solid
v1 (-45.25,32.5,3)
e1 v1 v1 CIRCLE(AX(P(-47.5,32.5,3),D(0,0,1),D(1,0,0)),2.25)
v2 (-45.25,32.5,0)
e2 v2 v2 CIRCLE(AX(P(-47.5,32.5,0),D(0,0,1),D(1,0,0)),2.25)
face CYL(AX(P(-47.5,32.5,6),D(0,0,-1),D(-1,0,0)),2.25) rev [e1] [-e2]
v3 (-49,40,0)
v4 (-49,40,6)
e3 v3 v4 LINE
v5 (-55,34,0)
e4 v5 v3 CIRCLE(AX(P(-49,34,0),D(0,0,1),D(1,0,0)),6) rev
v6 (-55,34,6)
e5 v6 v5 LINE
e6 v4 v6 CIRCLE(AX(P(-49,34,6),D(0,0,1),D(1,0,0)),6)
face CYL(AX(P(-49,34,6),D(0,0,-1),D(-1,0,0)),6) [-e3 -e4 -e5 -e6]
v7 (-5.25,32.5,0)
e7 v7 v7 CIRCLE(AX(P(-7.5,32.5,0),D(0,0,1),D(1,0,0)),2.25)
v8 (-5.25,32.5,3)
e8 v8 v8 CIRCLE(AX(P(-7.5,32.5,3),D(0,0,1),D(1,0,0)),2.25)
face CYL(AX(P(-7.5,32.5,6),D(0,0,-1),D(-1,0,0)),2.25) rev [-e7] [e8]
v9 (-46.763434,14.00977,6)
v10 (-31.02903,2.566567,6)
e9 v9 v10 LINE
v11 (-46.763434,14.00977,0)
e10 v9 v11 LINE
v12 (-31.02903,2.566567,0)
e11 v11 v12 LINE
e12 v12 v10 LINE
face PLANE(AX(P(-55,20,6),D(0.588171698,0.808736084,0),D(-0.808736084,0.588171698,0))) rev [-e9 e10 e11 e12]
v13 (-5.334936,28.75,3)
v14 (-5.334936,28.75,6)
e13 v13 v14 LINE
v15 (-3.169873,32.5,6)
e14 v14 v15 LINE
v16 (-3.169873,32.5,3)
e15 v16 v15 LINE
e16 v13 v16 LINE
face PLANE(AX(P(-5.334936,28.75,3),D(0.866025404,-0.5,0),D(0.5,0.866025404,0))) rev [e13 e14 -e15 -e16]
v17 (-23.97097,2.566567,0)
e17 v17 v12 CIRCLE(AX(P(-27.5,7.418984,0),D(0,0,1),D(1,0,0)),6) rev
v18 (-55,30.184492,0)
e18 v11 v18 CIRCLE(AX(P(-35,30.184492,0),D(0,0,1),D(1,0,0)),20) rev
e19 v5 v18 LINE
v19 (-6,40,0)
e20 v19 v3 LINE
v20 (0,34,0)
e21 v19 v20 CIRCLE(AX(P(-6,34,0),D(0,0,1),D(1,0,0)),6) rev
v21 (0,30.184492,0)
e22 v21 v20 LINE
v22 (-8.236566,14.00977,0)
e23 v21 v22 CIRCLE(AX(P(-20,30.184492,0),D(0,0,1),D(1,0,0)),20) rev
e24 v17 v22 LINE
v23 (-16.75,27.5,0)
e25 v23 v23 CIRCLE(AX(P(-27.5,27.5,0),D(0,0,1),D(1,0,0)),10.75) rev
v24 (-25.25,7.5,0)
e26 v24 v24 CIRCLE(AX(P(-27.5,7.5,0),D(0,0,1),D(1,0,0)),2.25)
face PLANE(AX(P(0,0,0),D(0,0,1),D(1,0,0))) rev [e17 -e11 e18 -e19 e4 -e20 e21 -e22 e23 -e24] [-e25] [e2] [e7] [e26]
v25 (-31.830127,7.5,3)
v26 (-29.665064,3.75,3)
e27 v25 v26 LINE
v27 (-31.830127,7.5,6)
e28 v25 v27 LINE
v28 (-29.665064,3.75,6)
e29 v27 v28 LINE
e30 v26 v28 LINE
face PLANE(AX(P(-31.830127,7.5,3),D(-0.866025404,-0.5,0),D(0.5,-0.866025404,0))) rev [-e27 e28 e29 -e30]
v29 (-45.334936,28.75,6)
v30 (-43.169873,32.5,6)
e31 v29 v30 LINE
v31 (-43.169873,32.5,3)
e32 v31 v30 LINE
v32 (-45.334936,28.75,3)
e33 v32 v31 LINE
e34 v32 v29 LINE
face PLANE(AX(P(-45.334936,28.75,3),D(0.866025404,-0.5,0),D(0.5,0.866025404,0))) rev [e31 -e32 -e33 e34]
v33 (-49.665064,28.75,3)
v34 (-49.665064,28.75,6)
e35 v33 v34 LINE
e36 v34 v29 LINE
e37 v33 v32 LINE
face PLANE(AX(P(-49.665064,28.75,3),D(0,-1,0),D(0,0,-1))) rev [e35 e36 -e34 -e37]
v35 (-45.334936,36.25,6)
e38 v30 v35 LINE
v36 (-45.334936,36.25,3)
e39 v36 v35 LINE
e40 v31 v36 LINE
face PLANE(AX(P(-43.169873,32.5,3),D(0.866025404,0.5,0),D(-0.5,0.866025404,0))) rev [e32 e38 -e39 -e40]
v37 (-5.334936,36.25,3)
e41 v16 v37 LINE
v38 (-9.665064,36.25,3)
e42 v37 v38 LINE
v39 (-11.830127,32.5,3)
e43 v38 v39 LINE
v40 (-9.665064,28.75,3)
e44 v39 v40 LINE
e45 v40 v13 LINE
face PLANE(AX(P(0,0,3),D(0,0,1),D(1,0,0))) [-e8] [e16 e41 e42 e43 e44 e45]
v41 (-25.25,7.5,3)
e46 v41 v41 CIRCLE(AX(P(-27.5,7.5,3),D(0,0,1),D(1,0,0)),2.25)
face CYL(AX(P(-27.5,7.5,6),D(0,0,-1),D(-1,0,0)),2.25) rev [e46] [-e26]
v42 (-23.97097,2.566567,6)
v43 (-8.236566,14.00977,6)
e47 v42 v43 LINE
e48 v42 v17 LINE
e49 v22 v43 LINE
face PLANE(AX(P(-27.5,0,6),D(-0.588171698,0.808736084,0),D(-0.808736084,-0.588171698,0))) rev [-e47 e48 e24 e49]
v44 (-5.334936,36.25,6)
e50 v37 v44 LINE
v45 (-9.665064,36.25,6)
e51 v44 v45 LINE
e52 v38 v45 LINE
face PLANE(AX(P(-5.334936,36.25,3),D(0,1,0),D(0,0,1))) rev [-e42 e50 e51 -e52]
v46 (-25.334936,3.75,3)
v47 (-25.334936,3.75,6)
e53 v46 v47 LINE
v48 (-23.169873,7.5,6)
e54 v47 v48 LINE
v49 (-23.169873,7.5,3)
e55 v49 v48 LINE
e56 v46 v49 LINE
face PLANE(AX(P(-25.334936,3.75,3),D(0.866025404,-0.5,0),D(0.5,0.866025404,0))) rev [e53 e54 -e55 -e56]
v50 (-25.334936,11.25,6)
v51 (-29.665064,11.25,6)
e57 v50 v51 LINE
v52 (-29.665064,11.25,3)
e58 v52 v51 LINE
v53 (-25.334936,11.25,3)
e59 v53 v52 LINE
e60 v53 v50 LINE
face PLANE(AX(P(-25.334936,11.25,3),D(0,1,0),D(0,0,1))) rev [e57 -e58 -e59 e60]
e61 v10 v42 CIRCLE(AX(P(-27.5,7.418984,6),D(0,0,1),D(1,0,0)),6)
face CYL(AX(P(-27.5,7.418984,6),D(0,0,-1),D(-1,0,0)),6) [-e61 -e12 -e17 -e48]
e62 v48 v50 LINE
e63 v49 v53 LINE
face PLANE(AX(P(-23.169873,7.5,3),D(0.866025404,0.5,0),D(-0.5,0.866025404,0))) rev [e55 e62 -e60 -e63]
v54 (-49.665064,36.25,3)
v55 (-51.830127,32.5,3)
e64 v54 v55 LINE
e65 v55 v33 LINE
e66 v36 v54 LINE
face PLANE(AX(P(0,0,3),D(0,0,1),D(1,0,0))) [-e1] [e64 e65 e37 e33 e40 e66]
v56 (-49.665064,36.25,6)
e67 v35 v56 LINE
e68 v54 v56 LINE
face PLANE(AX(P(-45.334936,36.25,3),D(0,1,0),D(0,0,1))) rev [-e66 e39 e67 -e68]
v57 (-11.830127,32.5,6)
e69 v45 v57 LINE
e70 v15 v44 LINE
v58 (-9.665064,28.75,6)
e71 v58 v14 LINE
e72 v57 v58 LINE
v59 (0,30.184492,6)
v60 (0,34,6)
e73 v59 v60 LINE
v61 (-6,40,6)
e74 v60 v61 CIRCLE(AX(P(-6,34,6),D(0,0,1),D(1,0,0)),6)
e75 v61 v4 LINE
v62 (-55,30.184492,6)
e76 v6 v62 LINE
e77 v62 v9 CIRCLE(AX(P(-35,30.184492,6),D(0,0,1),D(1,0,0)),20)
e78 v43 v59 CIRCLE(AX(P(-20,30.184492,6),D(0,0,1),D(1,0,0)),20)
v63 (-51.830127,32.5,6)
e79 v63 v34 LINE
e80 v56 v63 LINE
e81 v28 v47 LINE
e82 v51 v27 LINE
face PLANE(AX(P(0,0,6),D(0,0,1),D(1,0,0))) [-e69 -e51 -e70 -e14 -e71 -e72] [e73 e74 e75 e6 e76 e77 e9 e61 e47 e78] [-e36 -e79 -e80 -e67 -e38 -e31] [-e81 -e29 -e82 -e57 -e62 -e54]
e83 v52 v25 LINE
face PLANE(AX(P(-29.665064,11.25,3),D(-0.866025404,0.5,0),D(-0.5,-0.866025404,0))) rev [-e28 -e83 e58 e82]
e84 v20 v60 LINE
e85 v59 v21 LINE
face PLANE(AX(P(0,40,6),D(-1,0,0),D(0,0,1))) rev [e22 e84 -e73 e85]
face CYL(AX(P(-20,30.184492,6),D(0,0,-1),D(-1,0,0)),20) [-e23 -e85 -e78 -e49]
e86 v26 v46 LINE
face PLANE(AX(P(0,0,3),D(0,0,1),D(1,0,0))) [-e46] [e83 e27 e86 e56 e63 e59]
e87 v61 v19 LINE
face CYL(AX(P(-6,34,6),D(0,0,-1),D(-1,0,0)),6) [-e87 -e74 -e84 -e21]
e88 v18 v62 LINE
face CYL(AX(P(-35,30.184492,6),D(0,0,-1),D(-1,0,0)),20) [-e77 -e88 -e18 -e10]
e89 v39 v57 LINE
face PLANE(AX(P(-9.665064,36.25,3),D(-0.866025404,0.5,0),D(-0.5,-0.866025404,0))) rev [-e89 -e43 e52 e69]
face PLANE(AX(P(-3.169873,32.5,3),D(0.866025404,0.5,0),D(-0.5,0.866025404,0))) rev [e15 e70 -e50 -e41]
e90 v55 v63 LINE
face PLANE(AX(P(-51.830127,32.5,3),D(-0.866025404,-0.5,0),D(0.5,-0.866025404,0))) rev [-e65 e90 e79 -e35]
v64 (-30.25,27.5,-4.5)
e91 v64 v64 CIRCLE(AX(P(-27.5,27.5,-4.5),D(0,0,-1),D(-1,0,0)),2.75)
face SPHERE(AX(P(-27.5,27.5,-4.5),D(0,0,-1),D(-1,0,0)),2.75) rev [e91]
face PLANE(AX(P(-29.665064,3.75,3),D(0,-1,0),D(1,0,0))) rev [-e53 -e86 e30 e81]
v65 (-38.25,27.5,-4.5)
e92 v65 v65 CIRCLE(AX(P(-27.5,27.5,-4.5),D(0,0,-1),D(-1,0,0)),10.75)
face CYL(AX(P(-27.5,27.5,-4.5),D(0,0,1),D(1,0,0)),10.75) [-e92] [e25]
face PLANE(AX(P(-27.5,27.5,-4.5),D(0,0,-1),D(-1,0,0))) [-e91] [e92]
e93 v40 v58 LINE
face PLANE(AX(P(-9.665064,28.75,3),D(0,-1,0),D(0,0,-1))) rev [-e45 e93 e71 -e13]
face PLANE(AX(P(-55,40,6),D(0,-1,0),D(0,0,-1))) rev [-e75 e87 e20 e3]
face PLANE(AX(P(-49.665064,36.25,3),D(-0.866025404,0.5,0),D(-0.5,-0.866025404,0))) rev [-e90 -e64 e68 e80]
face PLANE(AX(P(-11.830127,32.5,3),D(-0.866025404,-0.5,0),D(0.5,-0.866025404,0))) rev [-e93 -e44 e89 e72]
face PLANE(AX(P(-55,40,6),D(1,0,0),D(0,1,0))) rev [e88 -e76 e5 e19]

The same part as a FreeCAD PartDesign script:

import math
import FreeCAD as App
import Part
import Sketcher

V = App.Vector
Q = App.Units.Quantity


def edges_at(feature, points):
    """Names of the edges that pass closest to the given points."""
    edges = feature.Shape.Edges
    near = lambda p: min(range(len(edges)), key=lambda i: edges[i].distToShape(Part.Vertex(*p))[0])
    return sorted({f"Edge{near(p) + 1}" for p in points})

doc = App.newDocument("Part")
body = doc.addObject("PartDesign::Body", "Body")

sketch1 = doc.addObject("Sketcher::SketchObject", "Sketch")
body.addObject(sketch1)
sketch1.AttachmentSupport = (doc.XY_Plane, [""])
sketch1.MapMode = "FlatFace"
sketch1.addGeometry(Part.LineSegment(V(-55, 20, 0), V(-27.5, 0, 0)), False)
sketch1.addGeometry(Part.LineSegment(V(-27.5, 0, 0), V(0, 20, 0)), False)
sketch1.addGeometry(Part.LineSegment(V(0, 20, 0), V(0, 40, 0)), False)
sketch1.addGeometry(Part.LineSegment(V(0, 40, 0), V(-55, 40, 0)), False)
sketch1.addGeometry(Part.LineSegment(V(-55, 40, 0), V(-55, 20, 0)), False)
sketch1.addGeometry(Part.Circle(V(-27.5, 7.5, 0), V(0, 0, 1), 2.25), False)
sketch1.addGeometry(Part.Circle(V(-47.5, 32.5, 0), V(0, 0, 1), 2.25), False)
sketch1.addGeometry(Part.Circle(V(-7.5, 32.5, 0), V(0, 0, 1), 2.25), False)
sketch1.addConstraint(Sketcher.Constraint("Coincident", 0, 2, 1, 1))
sketch1.addConstraint(Sketcher.Constraint("Coincident", 1, 2, 2, 1))
sketch1.addConstraint(Sketcher.Constraint("Coincident", 2, 2, 3, 1))
sketch1.addConstraint(Sketcher.Constraint("Coincident", 3, 2, 4, 1))
sketch1.addConstraint(Sketcher.Constraint("Coincident", 4, 2, 0, 1))
sketch1.addConstraint(Sketcher.Constraint("Vertical", 2))
sketch1.addConstraint(Sketcher.Constraint("Horizontal", 3))
sketch1.addConstraint(Sketcher.Constraint("Vertical", 4))
sketch1.addConstraint(Sketcher.Constraint("Equal", 5, 6))
sketch1.addConstraint(Sketcher.Constraint("Equal", 6, 7))
sketch1.addConstraint(Sketcher.Constraint("PointOnObject", 0, 2, -1))
sketch1.addConstraint(Sketcher.Constraint("PointOnObject", 1, 2, -2))
sketch1.addConstraint(Sketcher.Constraint("Horizontal", 6, 3, 7, 3))
sketch1.addConstraint(Sketcher.Constraint("Horizontal", 1, 2, 4, 2))
sketch1.addConstraint(Sketcher.Constraint("Vertical", 5, 3, 0, 2))
sketch1.addConstraint(Sketcher.Constraint("Equal", 0, 1))
sketch1.addConstraint(Sketcher.Constraint("Diameter", 5, 4.5))
sketch1.addConstraint(Sketcher.Constraint("DistanceX", 3, 2, 3, 1, 55.0))
sketch1.addConstraint(Sketcher.Constraint("DistanceY", 2, 1, 2, 2, 20.0))
sketch1.addConstraint(Sketcher.Constraint("DistanceY", -1, 1, 1, 2, 20.0))
sketch1.addConstraint(Sketcher.Constraint("DistanceX", 6, 3, 5, 3, 20.0))
sketch1.addConstraint(Sketcher.Constraint("DistanceY", 5, 3, 6, 3, 25.0))
sketch1.addConstraint(Sketcher.Constraint("DistanceX", 5, 3, 7, 3, 20.0))
sketch1.addConstraint(Sketcher.Constraint("DistanceY", -1, 1, 5, 3, 7.5))
pad1 = doc.addObject("PartDesign::Pad", "Pad")
body.addObject(pad1)
pad1.Profile = sketch1
pad1.Length = 6
doc.recompute()

fillet = doc.addObject("PartDesign::Fillet", "Fillet")
body.addObject(fillet)
fillet.Base = (pad1, edges_at(pad1, [(-55, 40, 3), (0, 40, 3), (-27.5, 0, 3)]))
fillet.Radius = 6
doc.recompute()

fillet2 = doc.addObject("PartDesign::Fillet", "Fillet001")
body.addObject(fillet2)
fillet2.Base = (fillet, edges_at(fillet, [(0, 20, 3), (-55, 20, 3)]))
fillet2.Radius = 20

sketch2 = doc.addObject("Sketcher::SketchObject", "Sketch001")
body.addObject(sketch2)
sketch2.AttachmentSupport = (doc.XY_Plane, [""])
sketch2.MapMode = "FlatFace"
sketch2.addGeometry(Part.Circle(V(-27.5, 27.5, 0), V(0, 0, 1), 10.75), False)
sketch2.addConstraint(Sketcher.Constraint("Diameter", 0, 21.5))
sketch2.addConstraint(Sketcher.Constraint("DistanceX", 0, 3, -1, 1, 27.5))
sketch2.addConstraint(Sketcher.Constraint("DistanceY", -1, 1, 0, 3, 27.5))
pad2 = doc.addObject("PartDesign::Pad", "Pad001")
body.addObject(pad2)
pad2.Profile = sketch2
pad2.Length = 4.5
pad2.Reversed = True

sketch3 = doc.addObject("Sketcher::SketchObject", "Sketch002")
body.addObject(sketch3)
sketch3.AttachmentSupport = (doc.XY_Plane, [""])
sketch3.MapMode = "FlatFace"
sketch3.AttachmentOffset = App.Placement(V(0, 0, -4.5), App.Rotation())
sketch3.addGeometry(Part.LineSegment(V(-27.5, 24.75, 0), V(-27.5, 30.25, 0)), False)
sketch3.addGeometry(Part.ArcOfCircle(Part.Circle(V(-27.5, 27.5, 0), V(0, 0, 1), 2.75), math.radians(-90), math.radians(90)), False)
sketch3.addGeometry(Part.LineSegment(V(-27.5, 30.25, 0), V(-27.5, 24.75, 0)), True)
sketch3.addConstraint(Sketcher.Constraint("Coincident", 0, 1, 1, 1))
sketch3.addConstraint(Sketcher.Constraint("Coincident", 1, 2, 0, 2))
sketch3.addConstraint(Sketcher.Constraint("Vertical", 0))
sketch3.addConstraint(Sketcher.Constraint("Vertical", 2))
sketch3.addConstraint(Sketcher.Constraint("Coincident", 2, 1, 1, 2))
sketch3.addConstraint(Sketcher.Constraint("Vertical", 1, 3, 0, 1))
sketch3.addConstraint(Sketcher.Constraint("Equal", 0, 2))
sketch3.addConstraint(Sketcher.Constraint("Radius", 1, 2.75))
sketch3.addConstraint(Sketcher.Constraint("DistanceX", 1, 3, -1, 1, 27.5))
sketch3.addConstraint(Sketcher.Constraint("DistanceY", -1, 1, 1, 3, 27.5))
groove = doc.addObject("PartDesign::Groove", "Groove")
body.addObject(groove)
groove.Profile = sketch3
groove.ReferenceAxis = (sketch3, ["Axis0"])
groove.Angle = 360

sketch4 = doc.addObject("Sketcher::SketchObject", "Sketch003")
body.addObject(sketch4)
sketch4.AttachmentSupport = (doc.XY_Plane, [""])
sketch4.MapMode = "FlatFace"
sketch4.AttachmentOffset = App.Placement(V(0, 0, 6), App.Rotation())
sketch4.addGeometry(Part.LineSegment(V(-43.169873, 32.5, 0), V(-45.334936, 36.25, 0)), False)
sketch4.addGeometry(Part.LineSegment(V(-45.334936, 36.25, 0), V(-49.665064, 36.25, 0)), False)
sketch4.addGeometry(Part.LineSegment(V(-49.665064, 36.25, 0), V(-51.830127, 32.5, 0)), False)
sketch4.addGeometry(Part.LineSegment(V(-51.830127, 32.5, 0), V(-49.665064, 28.75, 0)), False)
sketch4.addGeometry(Part.LineSegment(V(-49.665064, 28.75, 0), V(-45.334936, 28.75, 0)), False)
sketch4.addGeometry(Part.LineSegment(V(-45.334936, 28.75, 0), V(-43.169873, 32.5, 0)), False)
sketch4.addGeometry(Part.LineSegment(V(-11.830127, 32.5, 0), V(-9.665064, 28.75, 0)), False)
sketch4.addGeometry(Part.LineSegment(V(-9.665064, 28.75, 0), V(-5.334936, 28.75, 0)), False)
sketch4.addGeometry(Part.LineSegment(V(-5.334936, 28.75, 0), V(-3.169873, 32.5, 0)), False)
sketch4.addGeometry(Part.LineSegment(V(-3.169873, 32.5, 0), V(-5.334936, 36.25, 0)), False)
sketch4.addGeometry(Part.LineSegment(V(-5.334936, 36.25, 0), V(-9.665064, 36.25, 0)), False)
sketch4.addGeometry(Part.LineSegment(V(-9.665064, 36.25, 0), V(-11.830127, 32.5, 0)), False)
sketch4.addGeometry(Part.LineSegment(V(-23.169873, 7.5, 0), V(-25.334936, 11.25, 0)), False)
sketch4.addGeometry(Part.LineSegment(V(-25.334936, 11.25, 0), V(-29.665064, 11.25, 0)), False)
sketch4.addGeometry(Part.LineSegment(V(-29.665064, 11.25, 0), V(-31.830127, 7.5, 0)), False)
sketch4.addGeometry(Part.LineSegment(V(-31.830127, 7.5, 0), V(-29.665064, 3.75, 0)), False)
sketch4.addGeometry(Part.LineSegment(V(-29.665064, 3.75, 0), V(-25.334936, 3.75, 0)), False)
sketch4.addGeometry(Part.LineSegment(V(-25.334936, 3.75, 0), V(-23.169873, 7.5, 0)), False)
sketch4.addConstraint(Sketcher.Constraint("Coincident", 0, 2, 1, 1))
sketch4.addConstraint(Sketcher.Constraint("Coincident", 1, 2, 2, 1))
sketch4.addConstraint(Sketcher.Constraint("Coincident", 2, 2, 3, 1))
sketch4.addConstraint(Sketcher.Constraint("Coincident", 3, 2, 4, 1))
sketch4.addConstraint(Sketcher.Constraint("Coincident", 4, 2, 5, 1))
sketch4.addConstraint(Sketcher.Constraint("Coincident", 5, 2, 0, 1))
sketch4.addConstraint(Sketcher.Constraint("Coincident", 6, 2, 7, 1))
sketch4.addConstraint(Sketcher.Constraint("Coincident", 7, 2, 8, 1))
sketch4.addConstraint(Sketcher.Constraint("Coincident", 8, 2, 9, 1))
sketch4.addConstraint(Sketcher.Constraint("Coincident", 9, 2, 10, 1))
sketch4.addConstraint(Sketcher.Constraint("Coincident", 10, 2, 11, 1))
sketch4.addConstraint(Sketcher.Constraint("Coincident", 11, 2, 6, 1))
sketch4.addConstraint(Sketcher.Constraint("Coincident", 12, 2, 13, 1))
sketch4.addConstraint(Sketcher.Constraint("Coincident", 13, 2, 14, 1))
sketch4.addConstraint(Sketcher.Constraint("Coincident", 14, 2, 15, 1))
sketch4.addConstraint(Sketcher.Constraint("Coincident", 15, 2, 16, 1))
sketch4.addConstraint(Sketcher.Constraint("Coincident", 16, 2, 17, 1))
sketch4.addConstraint(Sketcher.Constraint("Coincident", 17, 2, 12, 1))
sketch4.addConstraint(Sketcher.Constraint("Horizontal", 1))
sketch4.addConstraint(Sketcher.Constraint("Horizontal", 4))
sketch4.addConstraint(Sketcher.Constraint("Horizontal", 7))
sketch4.addConstraint(Sketcher.Constraint("Horizontal", 10))
sketch4.addConstraint(Sketcher.Constraint("Horizontal", 13))
sketch4.addConstraint(Sketcher.Constraint("Horizontal", 16))
sketch4.addConstraint(Sketcher.Constraint("Parallel", 0, 3))
sketch4.addConstraint(Sketcher.Constraint("Parallel", 2, 5))
sketch4.addConstraint(Sketcher.Constraint("Parallel", 3, 6))
sketch4.addConstraint(Sketcher.Constraint("Parallel", 5, 8))
sketch4.addConstraint(Sketcher.Constraint("Parallel", 6, 9))
sketch4.addConstraint(Sketcher.Constraint("Parallel", 8, 11))
sketch4.addConstraint(Sketcher.Constraint("Parallel", 9, 12))
sketch4.addConstraint(Sketcher.Constraint("Parallel", 11, 14))
sketch4.addConstraint(Sketcher.Constraint("Parallel", 12, 15))
sketch4.addConstraint(Sketcher.Constraint("Parallel", 14, 17))
sketch4.addConstraint(Sketcher.Constraint("Horizontal", 2, 2, 5, 2))
sketch4.addConstraint(Sketcher.Constraint("Horizontal", 4, 2, 6, 2))
sketch4.addConstraint(Sketcher.Constraint("Horizontal", 5, 2, 8, 2))
sketch4.addConstraint(Sketcher.Constraint("Horizontal", 1, 2, 9, 2))
sketch4.addConstraint(Sketcher.Constraint("Horizontal", 8, 2, 11, 2))
sketch4.addConstraint(Sketcher.Constraint("Horizontal", 14, 2, 17, 2))
sketch4.addConstraint(Sketcher.Constraint("Vertical", 1, 2, 3, 2))
sketch4.addConstraint(Sketcher.Constraint("Vertical", 0, 2, 4, 2))
sketch4.addConstraint(Sketcher.Constraint("Vertical", 13, 2, 15, 2))
sketch4.addConstraint(Sketcher.Constraint("Equal", 4, 7))
sketch4.addConstraint(Sketcher.Constraint("Equal", 10, 13))
sketch4.addConstraint(Sketcher.Constraint("Equal", 11, 12))
sketch4.addConstraint(Sketcher.Constraint("Angle", 0, Q("120 deg")))
sketch4.addConstraint(Sketcher.Constraint("DistanceX", 3, 2, 6, 2, 40.0))
sketch4.addConstraint(Sketcher.Constraint("DistanceX", 4, 2, 12, 2, 20.0))
sketch4.addConstraint(Sketcher.Constraint("DistanceY", 14, 2, 5, 2, 25.0))
sketch4.addConstraint(Sketcher.Constraint("DistanceY", -1, 1, 2, 2, 32.5))
sketch4.addConstraint(Sketcher.Constraint("DistanceY", 3, 2, 1, 2, 7.5))
sketch4.addConstraint(Sketcher.Constraint("DistanceX", 1, 2, 1, 1, 4.330127))
sketch4.addConstraint(Sketcher.Constraint("DistanceX", 0, 2, -1, 1, 45.334936))
pocket1 = doc.addObject("PartDesign::Pocket", "Pocket")
body.addObject(pocket1)
pocket1.Profile = sketch4
pocket1.Length = 3

doc.recompute()
